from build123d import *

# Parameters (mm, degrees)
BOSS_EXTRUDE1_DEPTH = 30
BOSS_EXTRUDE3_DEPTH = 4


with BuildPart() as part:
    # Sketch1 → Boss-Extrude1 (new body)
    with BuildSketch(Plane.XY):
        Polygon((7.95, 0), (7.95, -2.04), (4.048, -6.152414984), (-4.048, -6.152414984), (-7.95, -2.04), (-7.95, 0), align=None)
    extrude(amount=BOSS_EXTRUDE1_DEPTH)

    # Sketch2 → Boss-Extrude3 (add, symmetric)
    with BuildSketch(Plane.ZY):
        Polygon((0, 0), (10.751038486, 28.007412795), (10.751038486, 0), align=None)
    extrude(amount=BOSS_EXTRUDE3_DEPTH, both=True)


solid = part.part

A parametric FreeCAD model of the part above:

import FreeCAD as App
import Part
import Sketcher
from FreeCAD import Vector
Q = App.Units.Quantity


def add_polygon(sketch, points):
    """Adds a closed chain of lines whose ends are joined by coincident constraints."""
    first, n = sketch.GeometryCount, len(points)
    for a, b in zip(points, points[1:] + points[:1]):
        sketch.addGeometry(Part.LineSegment(App.Vector(*a, 0), App.Vector(*b, 0)), False)
    for i in range(n):
        sketch.addConstraint(Sketcher.Constraint("Coincident", first + i, 2, first + (i + 1) % n, 1))

doc = App.newDocument("Part")
body = doc.addObject("PartDesign::Body", "Body")

# Sketch on XY plane
sketch1 = body.newObject("Sketcher::SketchObject", "Sketch")
sketch1.AttachmentSupport = (doc.getObject("XY_Plane"), [""])
sketch1.MapMode = "FlatFace"
add_polygon(sketch1, [(8, -2), (8, 0), (-8, 0), (-8, -2), (-4, -6.2), (4, -6.2)])  # lines 0-5
sketch1.addConstraint([
    Sketcher.Constraint("Vertical", 0),
    Sketcher.Constraint("Horizontal", 1),
    Sketcher.Constraint("Vertical", 2),
    Sketcher.Constraint("Horizontal", 4),
    Sketcher.Constraint("Symmetric", 0, 2, 1, 2, -1, 1),
    Sketcher.Constraint("Horizontal", 2, 2, 5, 2),
    Sketcher.Constraint("Equal", 3, 5),
    Sketcher.Constraint("DistanceX", 1, 2, 1, 1, 15.9),
    Sketcher.Constraint("DistanceY", 0, 1, 0, 2, 2.04),
    Sketcher.Constraint("DistanceX", 4, 1, 4, 2, 8.096),
    Sketcher.Constraint("Distance", 3, 5.669),
])
pad1 = body.newObject("PartDesign::Pad", "Pad")
pad1.Profile = sketch1
pad1.Length = 30

# Sketch on YZ plane
sketch2 = body.newObject("Sketcher::SketchObject", "Sketch001")
sketch2.AttachmentSupport = (doc.getObject("YZ_Plane"), [""])
sketch2.MapMode = "FlatFace"
add_polygon(sketch2, [(28, 11), (0, 0), (0, 11)])  # lines 0-2
sketch2.addConstraint([
    Sketcher.Constraint("Vertical", 1),
    Sketcher.Constraint("Horizontal", 2),
    Sketcher.Constraint("Coincident", 0, 2, -1, 1),
    Sketcher.Constraint("Angle", 0, Q("-159 deg")),
    Sketcher.Constraint("Distance", 0, 30.0),
])
pad2 = body.newObject("PartDesign::Pad", "Pad001")
pad2.Profile = sketch2
pad2.Length = 8
pad2.Midplane = True

doc.recompute()
